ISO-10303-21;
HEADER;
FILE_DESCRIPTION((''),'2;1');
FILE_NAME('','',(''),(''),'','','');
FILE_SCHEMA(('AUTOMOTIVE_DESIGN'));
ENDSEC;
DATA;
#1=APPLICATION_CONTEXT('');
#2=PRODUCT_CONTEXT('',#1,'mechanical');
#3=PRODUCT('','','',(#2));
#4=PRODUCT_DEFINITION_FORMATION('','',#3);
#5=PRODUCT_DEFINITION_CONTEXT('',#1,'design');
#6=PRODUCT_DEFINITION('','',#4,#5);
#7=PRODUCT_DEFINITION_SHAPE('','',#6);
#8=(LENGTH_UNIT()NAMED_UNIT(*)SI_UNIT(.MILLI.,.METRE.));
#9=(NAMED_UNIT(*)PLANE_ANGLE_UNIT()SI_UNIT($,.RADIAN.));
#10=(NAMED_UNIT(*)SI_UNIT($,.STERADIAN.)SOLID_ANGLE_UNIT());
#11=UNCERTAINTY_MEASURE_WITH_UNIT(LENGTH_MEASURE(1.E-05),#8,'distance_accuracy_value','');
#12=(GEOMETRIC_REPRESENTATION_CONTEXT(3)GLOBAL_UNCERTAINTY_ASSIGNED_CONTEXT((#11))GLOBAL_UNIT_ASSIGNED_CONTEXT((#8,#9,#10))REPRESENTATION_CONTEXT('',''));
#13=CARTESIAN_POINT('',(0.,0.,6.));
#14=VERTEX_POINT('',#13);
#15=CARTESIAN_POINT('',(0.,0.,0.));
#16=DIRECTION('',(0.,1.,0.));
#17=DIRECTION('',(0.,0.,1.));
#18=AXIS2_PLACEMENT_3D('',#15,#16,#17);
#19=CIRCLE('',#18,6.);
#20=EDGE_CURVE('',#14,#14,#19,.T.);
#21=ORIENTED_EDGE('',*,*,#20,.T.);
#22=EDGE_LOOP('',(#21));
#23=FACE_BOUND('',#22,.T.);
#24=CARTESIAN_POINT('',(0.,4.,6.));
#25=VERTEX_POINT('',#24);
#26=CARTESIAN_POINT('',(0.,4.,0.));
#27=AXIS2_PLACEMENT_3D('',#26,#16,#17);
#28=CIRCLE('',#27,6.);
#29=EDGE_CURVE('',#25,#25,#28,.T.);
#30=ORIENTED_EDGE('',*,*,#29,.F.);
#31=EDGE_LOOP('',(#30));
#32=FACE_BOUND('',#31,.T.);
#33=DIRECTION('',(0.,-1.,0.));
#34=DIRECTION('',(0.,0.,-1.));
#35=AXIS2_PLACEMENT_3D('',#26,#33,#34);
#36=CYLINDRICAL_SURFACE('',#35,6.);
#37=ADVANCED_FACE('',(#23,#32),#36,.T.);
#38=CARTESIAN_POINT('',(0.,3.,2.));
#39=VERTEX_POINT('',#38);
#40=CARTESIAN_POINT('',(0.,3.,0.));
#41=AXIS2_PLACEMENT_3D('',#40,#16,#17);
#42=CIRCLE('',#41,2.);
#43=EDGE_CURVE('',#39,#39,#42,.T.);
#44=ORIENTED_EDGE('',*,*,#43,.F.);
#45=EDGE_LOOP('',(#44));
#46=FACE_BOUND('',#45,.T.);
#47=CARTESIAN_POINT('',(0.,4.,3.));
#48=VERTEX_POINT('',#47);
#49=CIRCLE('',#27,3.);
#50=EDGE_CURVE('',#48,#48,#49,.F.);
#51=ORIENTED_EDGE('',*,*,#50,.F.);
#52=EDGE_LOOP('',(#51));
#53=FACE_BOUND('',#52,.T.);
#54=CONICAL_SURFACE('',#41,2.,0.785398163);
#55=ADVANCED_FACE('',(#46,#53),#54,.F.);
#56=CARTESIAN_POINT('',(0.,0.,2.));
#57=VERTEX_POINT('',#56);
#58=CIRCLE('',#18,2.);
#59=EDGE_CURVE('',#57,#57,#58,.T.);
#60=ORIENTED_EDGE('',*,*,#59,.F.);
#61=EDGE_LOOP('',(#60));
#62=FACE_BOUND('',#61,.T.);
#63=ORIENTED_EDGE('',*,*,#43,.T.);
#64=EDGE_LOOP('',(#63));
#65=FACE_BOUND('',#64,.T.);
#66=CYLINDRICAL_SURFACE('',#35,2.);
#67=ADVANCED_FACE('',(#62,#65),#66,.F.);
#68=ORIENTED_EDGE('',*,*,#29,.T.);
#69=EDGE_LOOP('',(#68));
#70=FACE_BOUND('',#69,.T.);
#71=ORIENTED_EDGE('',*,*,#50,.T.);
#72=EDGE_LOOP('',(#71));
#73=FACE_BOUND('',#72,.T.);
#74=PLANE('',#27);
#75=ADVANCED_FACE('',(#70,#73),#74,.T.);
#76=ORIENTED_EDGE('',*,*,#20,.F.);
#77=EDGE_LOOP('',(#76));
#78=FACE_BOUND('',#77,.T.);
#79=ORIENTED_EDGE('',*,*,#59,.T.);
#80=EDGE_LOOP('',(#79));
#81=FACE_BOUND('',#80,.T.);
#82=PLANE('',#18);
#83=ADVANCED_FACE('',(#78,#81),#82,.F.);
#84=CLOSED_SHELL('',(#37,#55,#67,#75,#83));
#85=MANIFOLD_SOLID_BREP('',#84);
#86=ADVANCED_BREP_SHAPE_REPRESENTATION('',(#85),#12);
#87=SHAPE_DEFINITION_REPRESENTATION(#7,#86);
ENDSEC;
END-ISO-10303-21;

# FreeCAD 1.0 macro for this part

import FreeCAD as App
import Part
import Sketcher


def edges_at(feature, points):
    """Names of the edges that pass closest to the given points."""
    edges = feature.Shape.Edges
    near = lambda p: min(range(len(edges)), key=lambda i: edges[i].distToShape(Part.Vertex(*p))[0])
    return sorted({f"Edge{near(p) + 1}" for p in points})

doc = App.newDocument("Part")
body = doc.addObject("PartDesign::Body", "Body")

sketch1 = body.newObject("Sketcher::SketchObject", "Sketch")
sketch1.AttachmentSupport = (doc.getObject("XZ_Plane"), [""])
sketch1.MapMode = "FlatFace"
sketch1.addGeometry([
    Part.Circle(App.Vector(0, 0, 0), App.Vector(0, 0, 1), 6),
    Part.Circle(App.Vector(0, 0, 0), App.Vector(0, 0, 1), 2),
], False)
sketch1.addConstraint([
    Sketcher.Constraint("Coincident", 0, 3, -1, 1),
    Sketcher.Constraint("Coincident", 1, 3, -1, 1),
    Sketcher.Constraint("Diameter", 0, 12.0),
    Sketcher.Constraint("Diameter", 1, 4.0),
])
pad1 = body.newObject("PartDesign::Pad", "Pad")
pad1.Profile = sketch1
pad1.Length = 4
pad1.Reversed = True
doc.recompute()

chamfer = body.newObject("PartDesign::Chamfer", "Chamfer")
chamfer.Base = (pad1, edges_at(pad1, [(-2, 4, 0)]))
chamfer.Size = 1

doc.recompute()
